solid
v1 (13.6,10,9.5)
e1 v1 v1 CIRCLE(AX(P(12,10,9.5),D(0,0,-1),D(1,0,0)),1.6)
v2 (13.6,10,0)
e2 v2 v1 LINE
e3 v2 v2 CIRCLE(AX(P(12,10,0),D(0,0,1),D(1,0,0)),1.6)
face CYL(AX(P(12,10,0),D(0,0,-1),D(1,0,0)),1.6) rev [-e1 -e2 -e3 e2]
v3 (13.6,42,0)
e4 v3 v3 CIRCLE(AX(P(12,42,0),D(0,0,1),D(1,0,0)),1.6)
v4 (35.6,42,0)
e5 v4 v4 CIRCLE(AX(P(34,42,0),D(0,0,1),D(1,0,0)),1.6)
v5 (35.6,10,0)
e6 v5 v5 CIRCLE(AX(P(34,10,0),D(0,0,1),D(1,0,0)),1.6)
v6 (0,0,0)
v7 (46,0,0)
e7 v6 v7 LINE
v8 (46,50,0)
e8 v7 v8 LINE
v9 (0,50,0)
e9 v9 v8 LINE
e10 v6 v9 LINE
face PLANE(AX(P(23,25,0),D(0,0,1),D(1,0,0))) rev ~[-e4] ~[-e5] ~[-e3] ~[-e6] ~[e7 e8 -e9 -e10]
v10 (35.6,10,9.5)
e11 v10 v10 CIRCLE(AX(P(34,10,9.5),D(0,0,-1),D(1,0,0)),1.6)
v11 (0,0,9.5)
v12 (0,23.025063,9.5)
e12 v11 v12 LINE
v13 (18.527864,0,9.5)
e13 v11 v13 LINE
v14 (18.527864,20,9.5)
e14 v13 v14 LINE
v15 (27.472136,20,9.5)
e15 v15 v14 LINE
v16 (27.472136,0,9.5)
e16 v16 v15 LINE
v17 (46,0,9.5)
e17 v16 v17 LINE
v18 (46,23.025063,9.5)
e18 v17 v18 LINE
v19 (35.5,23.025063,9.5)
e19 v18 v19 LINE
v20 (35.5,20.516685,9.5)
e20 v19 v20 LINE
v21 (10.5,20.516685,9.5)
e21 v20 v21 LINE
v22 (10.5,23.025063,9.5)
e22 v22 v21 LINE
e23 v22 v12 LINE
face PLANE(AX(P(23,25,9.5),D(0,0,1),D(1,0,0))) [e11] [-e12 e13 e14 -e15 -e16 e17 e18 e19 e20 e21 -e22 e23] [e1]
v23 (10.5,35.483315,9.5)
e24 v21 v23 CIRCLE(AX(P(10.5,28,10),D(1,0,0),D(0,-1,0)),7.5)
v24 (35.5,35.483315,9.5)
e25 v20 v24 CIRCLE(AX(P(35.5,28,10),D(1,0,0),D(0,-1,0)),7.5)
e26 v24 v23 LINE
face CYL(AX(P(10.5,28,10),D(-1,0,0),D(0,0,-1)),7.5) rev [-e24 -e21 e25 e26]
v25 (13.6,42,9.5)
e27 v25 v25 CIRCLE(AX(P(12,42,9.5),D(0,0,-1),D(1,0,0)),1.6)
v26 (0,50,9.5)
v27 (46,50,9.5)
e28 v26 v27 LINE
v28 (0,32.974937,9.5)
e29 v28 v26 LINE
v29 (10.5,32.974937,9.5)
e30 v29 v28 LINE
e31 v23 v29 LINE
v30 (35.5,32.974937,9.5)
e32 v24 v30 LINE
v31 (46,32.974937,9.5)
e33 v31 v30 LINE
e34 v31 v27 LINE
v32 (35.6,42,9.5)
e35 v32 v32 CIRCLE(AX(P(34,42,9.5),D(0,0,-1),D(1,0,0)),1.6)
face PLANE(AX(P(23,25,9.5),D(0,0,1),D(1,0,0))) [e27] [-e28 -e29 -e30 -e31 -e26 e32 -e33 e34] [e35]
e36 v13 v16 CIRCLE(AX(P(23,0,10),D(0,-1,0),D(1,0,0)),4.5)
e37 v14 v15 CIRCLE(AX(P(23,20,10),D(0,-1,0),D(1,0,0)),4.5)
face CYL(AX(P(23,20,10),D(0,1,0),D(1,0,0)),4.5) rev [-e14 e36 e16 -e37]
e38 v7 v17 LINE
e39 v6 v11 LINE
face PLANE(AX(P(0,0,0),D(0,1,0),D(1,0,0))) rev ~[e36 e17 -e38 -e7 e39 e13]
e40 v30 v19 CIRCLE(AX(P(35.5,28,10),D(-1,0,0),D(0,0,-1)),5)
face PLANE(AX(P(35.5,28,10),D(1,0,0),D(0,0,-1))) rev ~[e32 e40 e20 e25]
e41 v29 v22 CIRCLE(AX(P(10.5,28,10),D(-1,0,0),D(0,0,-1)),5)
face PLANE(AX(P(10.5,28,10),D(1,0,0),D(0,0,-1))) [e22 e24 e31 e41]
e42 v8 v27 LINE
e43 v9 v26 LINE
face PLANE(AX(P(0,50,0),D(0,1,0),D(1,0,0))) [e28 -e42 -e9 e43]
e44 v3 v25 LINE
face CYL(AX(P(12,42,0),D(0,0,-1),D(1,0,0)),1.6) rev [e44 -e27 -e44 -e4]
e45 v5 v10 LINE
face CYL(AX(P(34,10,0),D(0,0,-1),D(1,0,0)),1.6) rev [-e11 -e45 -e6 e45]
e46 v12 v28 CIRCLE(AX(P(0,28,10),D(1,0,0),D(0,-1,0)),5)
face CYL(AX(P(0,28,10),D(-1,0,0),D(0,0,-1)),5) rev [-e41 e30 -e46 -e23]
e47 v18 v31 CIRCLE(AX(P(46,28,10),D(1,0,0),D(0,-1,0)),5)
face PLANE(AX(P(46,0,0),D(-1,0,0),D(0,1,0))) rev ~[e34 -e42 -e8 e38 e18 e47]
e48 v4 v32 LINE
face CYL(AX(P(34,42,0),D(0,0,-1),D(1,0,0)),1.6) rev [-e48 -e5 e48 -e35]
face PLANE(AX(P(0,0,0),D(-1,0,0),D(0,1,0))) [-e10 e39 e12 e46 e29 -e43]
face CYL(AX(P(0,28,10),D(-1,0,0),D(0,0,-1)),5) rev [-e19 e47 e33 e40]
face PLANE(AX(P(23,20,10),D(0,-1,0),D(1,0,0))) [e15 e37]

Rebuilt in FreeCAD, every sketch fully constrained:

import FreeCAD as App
import Part
import Sketcher

doc = App.newDocument("Part")
body = doc.addObject("PartDesign::Body", "Body")

# Sketch on XY plane
sketch1 = body.newObject("Sketcher::SketchObject", "Sketch")
sketch1.AttachmentSupport = (doc.getObject("XY_Plane"), [""])
sketch1.MapMode = "FlatFace"
sketch1.AttachmentOffset = App.Placement(App.Vector(0, 0, 9.5), App.Rotation())
sketch1.addGeometry([
    Part.LineSegment(App.Vector(0, 50, 0), App.Vector(0, 0, 0)),
    Part.LineSegment(App.Vector(0, 0, 0), App.Vector(46, 0, 0)),
    Part.LineSegment(App.Vector(46, 0, 0), App.Vector(46, 50, 0)),
    Part.LineSegment(App.Vector(46, 50, 0), App.Vector(0, 50, 0)),
], False)
sketch1.addConstraint([
    Sketcher.Constraint("Coincident", 0, 2, 1, 1),
    Sketcher.Constraint("Coincident", 1, 2, 2, 1),
    Sketcher.Constraint("Coincident", 2, 2, 3, 1),
    Sketcher.Constraint("Coincident", 3, 2, 0, 1),
    Sketcher.Constraint("Vertical", 0),
    Sketcher.Constraint("Horizontal", 1),
    Sketcher.Constraint("Vertical", 2),
    Sketcher.Constraint("Horizontal", 3),
    Sketcher.Constraint("Coincident", 0, 2, -1, 1),
    Sketcher.Constraint("DistanceX", 1, 1, 1, 2, 46.0),
    Sketcher.Constraint("DistanceY", 0, 2, 0, 1, 50.0),
])
pad1 = body.newObject("PartDesign::Pad", "Pad")
pad1.Profile = sketch1
pad1.Length = 1
body2 = doc.addObject("PartDesign::Body", "Body001")

# Sketch on XY plane
sketch2 = body2.newObject("Sketcher::SketchObject", "Sketch001")
sketch2.AttachmentSupport = (doc.getObject("XY_Plane001"), [""])
sketch2.MapMode = "FlatFace"
sketch2.addGeometry(Part.Circle(App.Vector(0, 0, 0), App.Vector(0, 0, 1), 8), False)
sketch2.addConstraint([
    Sketcher.Constraint("Coincident", 0, 3, -1, 1),
    Sketcher.Constraint("Diameter", 0, 15.0),
])
pad2 = body2.newObject("PartDesign::Pad", "Pad001")
pad2.Profile = sketch2
pad2.Length = 25
body3 = doc.addObject("PartDesign::Body", "Body002")
doc.recompute()

body2.Placement = App.Placement(App.Vector(0, 0, 0), App.Rotation(App.Vector(0, 1, 0), 90))
boolean = body3.newObject("PartDesign::Boolean", "Boolean")
boolean.Type = "Fuse"
boolean.addObjects([body2])
body4 = doc.addObject("PartDesign::Body", "Body003")
doc.recompute()

body3.Placement = App.Placement(App.Vector(10.5, 28, 10), App.Rotation(App.Vector(0, 0, 1), 0))
boolean2 = body4.newObject("PartDesign::Boolean", "Boolean001")
boolean2.Type = "Fuse"
boolean2.addObjects([body3])
body5 = doc.addObject("PartDesign::Body", "Body004")

# Sketch on XY plane
sketch3 = body5.newObject("Sketcher::SketchObject", "Sketch002")
sketch3.AttachmentSupport = (doc.getObject("XY_Plane004"), [""])
sketch3.MapMode = "FlatFace"
sketch3.addGeometry(Part.Circle(App.Vector(0, 0, 0), App.Vector(0, 0, 1), 5), False)
sketch3.addConstraint([
    Sketcher.Constraint("Coincident", 0, 3, -1, 1),
    Sketcher.Constraint("Diameter", 0, 10.0),
])
pad3 = body5.newObject("PartDesign::Pad", "Pad002")
pad3.Profile = sketch3
pad3.Length = 46
body6 = doc.addObject("PartDesign::Body", "Body005")
doc.recompute()

body5.Placement = App.Placement(App.Vector(0, 0, 0), App.Rotation(App.Vector(0, 1, 0), 90))
boolean3 = body6.newObject("PartDesign::Boolean", "Boolean002")
boolean3.Type = "Fuse"
boolean3.addObjects([body5])
body7 = doc.addObject("PartDesign::Body", "Body006")
doc.recompute()

body6.Placement = App.Placement(App.Vector(0, 28, 10), App.Rotation(App.Vector(0, 0, 1), 0))
boolean4 = body7.newObject("PartDesign::Boolean", "Boolean003")
boolean4.Type = "Fuse"
boolean4.addObjects([body6])
body8 = doc.addObject("PartDesign::Body", "Body007")

# Sketch on XY plane
sketch4 = body8.newObject("Sketcher::SketchObject", "Sketch003")
sketch4.AttachmentSupport = (doc.getObject("XY_Plane007"), [""])
sketch4.MapMode = "FlatFace"
sketch4.addGeometry(Part.Circle(App.Vector(0, 0, 0), App.Vector(0, 0, 1), 4.5), False)
sketch4.addConstraint([
    Sketcher.Constraint("Coincident", 0, 3, -1, 1),
    Sketcher.Constraint("Diameter", 0, 9.0),
])
pad4 = body8.newObject("PartDesign::Pad", "Pad003")
pad4.Profile = sketch4
pad4.Length = 20
body9 = doc.addObject("PartDesign::Body", "Body008")
doc.recompute()

body8.Placement = App.Placement(App.Vector(0, 0, 0), App.Rotation(App.Vector(1, 0, 0), 90))
boolean5 = body9.newObject("PartDesign::Boolean", "Boolean004")
boolean5.Type = "Fuse"
boolean5.addObjects([body8])
body10 = doc.addObject("PartDesign::Body", "Body009")
doc.recompute()

body9.Placement = App.Placement(App.Vector(23, 20, 10), App.Rotation(App.Vector(0, 0, 1), 0))
boolean6 = body10.newObject("PartDesign::Boolean", "Boolean005")
boolean6.Type = "Fuse"
boolean6.addObjects([body9])
body11 = doc.addObject("PartDesign::Body", "Body010")

# Sketch on XY plane
sketch5 = body11.newObject("Sketcher::SketchObject", "Sketch004")
sketch5.AttachmentSupport = (doc.getObject("XY_Plane010"), [""])
sketch5.MapMode = "FlatFace"
sketch5.addGeometry(Part.Circle(App.Vector(34, 42, 0), App.Vector(0, 0, 1), 1.6), False)
sketch5.addConstraint([
    Sketcher.Constraint("Diameter", 0, 3.2),
    Sketcher.Constraint("DistanceX", -1, 1, 0, 3, 34.0),
    Sketcher.Constraint("DistanceY", -1, 1, 0, 3, 42.0),
])
pad5 = body11.newObject("PartDesign::Pad", "Pad004")
pad5.Profile = sketch5
pad5.Length = 10
body12 = doc.addObject("PartDesign::Body", "Body011")

# Sketch on XY plane
sketch6 = body12.newObject("Sketcher::SketchObject", "Sketch005")
sketch6.AttachmentSupport = (doc.getObject("XY_Plane011"), [""])
sketch6.MapMode = "FlatFace"
sketch6.addGeometry(Part.Circle(App.Vector(12, 42, 0), App.Vector(0, 0, 1), 1.6), False)
sketch6.addConstraint([
    Sketcher.Constraint("Diameter", 0, 3.2),
    Sketcher.Constraint("DistanceX", -1, 1, 0, 3, 12.0),
    Sketcher.Constraint("DistanceY", -1, 1, 0, 3, 42.0),
])
pad6 = body12.newObject("PartDesign::Pad", "Pad005")
pad6.Profile = sketch6
pad6.Length = 10
body13 = doc.addObject("PartDesign::Body", "Body012")

# Sketch on XY plane
sketch7 = body13.newObject("Sketcher::SketchObject", "Sketch006")
sketch7.AttachmentSupport = (doc.getObject("XY_Plane012"), [""])
sketch7.MapMode = "FlatFace"
sketch7.addGeometry(Part.Circle(App.Vector(34, 10, 0), App.Vector(0, 0, 1), 1.6), False)
sketch7.addConstraint([
    Sketcher.Constraint("Diameter", 0, 3.2),
    Sketcher.Constraint("DistanceX", -1, 1, 0, 3, 34.0),
    Sketcher.Constraint("DistanceY", -1, 1, 0, 3, 10.0),
])
pad7 = body13.newObject("PartDesign::Pad", "Pad006")
pad7.Profile = sketch7
pad7.Length = 10
body14 = doc.addObject("PartDesign::Body", "Body013")

# Sketch on XY plane
sketch8 = body14.newObject("Sketcher::SketchObject", "Sketch007")
sketch8.AttachmentSupport = (doc.getObject("XY_Plane013"), [""])
sketch8.MapMode = "FlatFace"
sketch8.addGeometry(Part.Circle(App.Vector(12, 10, 0), App.Vector(0, 0, 1), 1.6), False)
sketch8.addConstraint([
    Sketcher.Constraint("Diameter", 0, 3.2),
    Sketcher.Constraint("DistanceX", -1, 1, 0, 3, 12.0),
    Sketcher.Constraint("DistanceY", -1, 1, 0, 3, 10.0),
])
pad8 = body14.newObject("PartDesign::Pad", "Pad007")
pad8.Profile = sketch8
pad8.Length = 10
body15 = doc.addObject("PartDesign::Body", "Body014")

# Sketch on XY plane
sketch9 = body15.newObject("Sketcher::SketchObject", "Sketch008")
sketch9.AttachmentSupport = (doc.getObject("XY_Plane014"), [""])
sketch9.MapMode = "FlatFace"
sketch9.addGeometry([
    Part.LineSegment(App.Vector(0, 50, 0), App.Vector(0, 0, 0)),
    Part.LineSegment(App.Vector(0, 0, 0), App.Vector(46, 0, 0)),
    Part.LineSegment(App.Vector(46, 0, 0), App.Vector(46, 50, 0)),
    Part.LineSegment(App.Vector(46, 50, 0), App.Vector(0, 50, 0)),
], False)
sketch9.addConstraint([
    Sketcher.Constraint("Coincident", 0, 2, 1, 1),
    Sketcher.Constraint("Coincident", 1, 2, 2, 1),
    Sketcher.Constraint("Coincident", 2, 2, 3, 1),
    Sketcher.Constraint("Coincident", 3, 2, 0, 1),
    Sketcher.Constraint("Vertical", 0),
    Sketcher.Constraint("Horizontal", 1),
    Sketcher.Constraint("Vertical", 2),
    Sketcher.Constraint("Horizontal", 3),
    Sketcher.Constraint("Coincident", 0, 2, -1, 1),
    Sketcher.Constraint("DistanceX", 1, 1, 1, 2, 46.0),
    Sketcher.Constraint("DistanceY", 0, 2, 0, 1, 50.0),
])
pad9 = body15.newObject("PartDesign::Pad", "Pad008")
pad9.Profile = sketch9
pad9.Length = 10
doc.recompute()

boolean7 = body15.newObject("PartDesign::Boolean", "Boolean006")
boolean7.Type = "Cut"
boolean7.addObjects([body14])
doc.recompute()

boolean8 = body15.newObject("PartDesign::Boolean", "Boolean007")
boolean8.Type = "Cut"
boolean8.addObjects([body13])
doc.recompute()

boolean9 = body15.newObject("PartDesign::Boolean", "Boolean008")
boolean9.Type = "Cut"
boolean9.addObjects([body12])
doc.recompute()

boolean10 = body15.newObject("PartDesign::Boolean", "Boolean009")
boolean10.Type = "Cut"
boolean10.addObjects([body11])
doc.recompute()

boolean11 = body15.newObject("PartDesign::Boolean", "Boolean010")
boolean11.Type = "Cut"
boolean11.addObjects([body10])
doc.recompute()

boolean12 = body15.newObject("PartDesign::Boolean", "Boolean011")
boolean12.Type = "Cut"
boolean12.addObjects([body7])
doc.recompute()

boolean13 = body15.newObject("PartDesign::Boolean", "Boolean012")
boolean13.Type = "Cut"
boolean13.addObjects([body4])
doc.recompute()

boolean14 = body15.newObject("PartDesign::Boolean", "Boolean013")
boolean14.Type = "Cut"
boolean14.addObjects([body])

doc.recompute()
